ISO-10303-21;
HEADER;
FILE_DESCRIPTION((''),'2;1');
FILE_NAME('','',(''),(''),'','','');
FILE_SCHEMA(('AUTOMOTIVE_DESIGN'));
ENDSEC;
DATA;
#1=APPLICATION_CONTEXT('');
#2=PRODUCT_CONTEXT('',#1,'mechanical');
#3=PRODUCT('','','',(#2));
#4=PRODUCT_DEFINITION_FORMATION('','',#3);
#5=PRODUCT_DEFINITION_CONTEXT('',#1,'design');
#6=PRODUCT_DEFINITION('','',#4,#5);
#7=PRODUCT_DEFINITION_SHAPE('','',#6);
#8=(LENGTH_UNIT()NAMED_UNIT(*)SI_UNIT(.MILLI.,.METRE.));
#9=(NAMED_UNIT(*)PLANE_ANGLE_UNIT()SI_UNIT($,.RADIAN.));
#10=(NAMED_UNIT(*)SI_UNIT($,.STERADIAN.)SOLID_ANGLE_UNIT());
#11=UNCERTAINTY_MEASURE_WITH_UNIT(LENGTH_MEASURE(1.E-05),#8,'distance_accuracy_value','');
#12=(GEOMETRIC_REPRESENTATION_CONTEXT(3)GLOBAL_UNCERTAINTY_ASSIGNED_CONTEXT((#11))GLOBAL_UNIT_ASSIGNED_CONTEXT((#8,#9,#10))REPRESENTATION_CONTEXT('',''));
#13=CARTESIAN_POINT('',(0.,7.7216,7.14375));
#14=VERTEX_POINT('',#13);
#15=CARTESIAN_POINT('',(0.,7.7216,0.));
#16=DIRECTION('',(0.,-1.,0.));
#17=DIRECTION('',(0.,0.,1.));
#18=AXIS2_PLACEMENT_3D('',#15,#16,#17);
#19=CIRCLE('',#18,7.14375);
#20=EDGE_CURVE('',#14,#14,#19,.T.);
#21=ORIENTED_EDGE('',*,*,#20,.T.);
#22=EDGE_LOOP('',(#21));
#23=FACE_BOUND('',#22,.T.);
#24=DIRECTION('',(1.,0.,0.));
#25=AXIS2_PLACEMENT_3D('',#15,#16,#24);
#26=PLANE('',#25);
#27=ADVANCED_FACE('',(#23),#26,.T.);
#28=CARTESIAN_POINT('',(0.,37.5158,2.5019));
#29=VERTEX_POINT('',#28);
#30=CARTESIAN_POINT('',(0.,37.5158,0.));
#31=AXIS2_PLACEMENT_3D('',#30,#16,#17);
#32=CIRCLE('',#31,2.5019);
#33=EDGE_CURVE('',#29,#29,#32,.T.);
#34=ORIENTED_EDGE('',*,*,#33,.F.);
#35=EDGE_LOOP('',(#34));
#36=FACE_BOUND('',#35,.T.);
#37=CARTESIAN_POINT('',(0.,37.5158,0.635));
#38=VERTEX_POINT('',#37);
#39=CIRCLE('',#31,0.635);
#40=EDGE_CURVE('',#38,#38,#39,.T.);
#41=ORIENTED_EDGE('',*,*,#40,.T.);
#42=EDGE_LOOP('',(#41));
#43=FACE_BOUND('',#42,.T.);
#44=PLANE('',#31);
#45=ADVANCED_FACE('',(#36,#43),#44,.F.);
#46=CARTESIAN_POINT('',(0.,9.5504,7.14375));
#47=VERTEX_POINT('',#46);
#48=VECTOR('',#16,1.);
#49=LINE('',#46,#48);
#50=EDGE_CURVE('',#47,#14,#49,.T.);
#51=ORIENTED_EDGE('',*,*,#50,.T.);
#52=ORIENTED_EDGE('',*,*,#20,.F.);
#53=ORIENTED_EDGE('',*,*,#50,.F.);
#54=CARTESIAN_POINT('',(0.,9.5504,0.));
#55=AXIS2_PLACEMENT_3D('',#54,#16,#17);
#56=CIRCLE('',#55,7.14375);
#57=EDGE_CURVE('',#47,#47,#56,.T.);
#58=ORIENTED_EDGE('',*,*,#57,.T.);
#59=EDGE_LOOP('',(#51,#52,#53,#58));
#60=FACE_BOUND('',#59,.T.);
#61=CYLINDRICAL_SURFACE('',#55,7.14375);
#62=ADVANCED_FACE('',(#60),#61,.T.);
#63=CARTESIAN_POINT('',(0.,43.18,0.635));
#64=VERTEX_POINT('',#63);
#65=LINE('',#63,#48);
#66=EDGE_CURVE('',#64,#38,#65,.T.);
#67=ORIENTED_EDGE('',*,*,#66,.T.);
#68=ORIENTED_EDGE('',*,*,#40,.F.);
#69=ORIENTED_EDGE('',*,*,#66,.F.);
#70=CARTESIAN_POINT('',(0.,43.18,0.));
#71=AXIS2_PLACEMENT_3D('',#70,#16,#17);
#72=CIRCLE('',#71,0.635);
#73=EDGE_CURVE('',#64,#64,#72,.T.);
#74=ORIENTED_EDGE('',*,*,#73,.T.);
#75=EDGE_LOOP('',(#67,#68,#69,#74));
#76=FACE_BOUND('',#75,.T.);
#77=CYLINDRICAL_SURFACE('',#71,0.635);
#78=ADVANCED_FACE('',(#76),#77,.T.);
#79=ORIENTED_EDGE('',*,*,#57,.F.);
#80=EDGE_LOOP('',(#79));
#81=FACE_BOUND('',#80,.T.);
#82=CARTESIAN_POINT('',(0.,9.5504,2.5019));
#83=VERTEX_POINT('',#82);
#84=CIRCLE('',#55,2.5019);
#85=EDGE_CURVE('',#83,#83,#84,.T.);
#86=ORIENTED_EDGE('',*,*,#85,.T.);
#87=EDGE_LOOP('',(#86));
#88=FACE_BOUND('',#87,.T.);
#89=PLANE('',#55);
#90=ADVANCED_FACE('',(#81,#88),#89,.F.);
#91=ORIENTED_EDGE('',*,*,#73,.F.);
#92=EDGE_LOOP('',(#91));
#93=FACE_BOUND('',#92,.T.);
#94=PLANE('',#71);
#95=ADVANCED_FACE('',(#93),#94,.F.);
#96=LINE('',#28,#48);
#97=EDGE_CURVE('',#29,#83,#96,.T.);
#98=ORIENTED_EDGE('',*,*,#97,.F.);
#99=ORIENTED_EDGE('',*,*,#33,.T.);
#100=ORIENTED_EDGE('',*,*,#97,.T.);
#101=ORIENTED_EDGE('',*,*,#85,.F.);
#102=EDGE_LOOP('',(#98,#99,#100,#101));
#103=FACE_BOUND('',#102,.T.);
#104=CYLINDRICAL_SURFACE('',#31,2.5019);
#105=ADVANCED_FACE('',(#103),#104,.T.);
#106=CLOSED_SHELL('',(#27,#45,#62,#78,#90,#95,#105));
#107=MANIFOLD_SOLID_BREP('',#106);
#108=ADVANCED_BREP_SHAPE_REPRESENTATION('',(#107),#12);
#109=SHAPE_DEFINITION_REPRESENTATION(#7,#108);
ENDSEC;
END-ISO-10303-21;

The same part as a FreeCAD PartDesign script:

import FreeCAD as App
import Part
import Sketcher
Q = App.Units.Quantity


def add_polygon(sketch, points):
    """Adds a closed chain of lines whose ends are joined by coincident constraints."""
    first, n = sketch.GeometryCount, len(points)
    for a, b in zip(points, points[1:] + points[:1]):
        sketch.addGeometry(Part.LineSegment(App.Vector(*a, 0), App.Vector(*b, 0)), False)
    for i in range(n):
        sketch.addConstraint(Sketcher.Constraint("Coincident", first + i, 2, first + (i + 1) % n, 1))

doc = App.newDocument("Part")
body = doc.addObject("PartDesign::Body", "Body")

# Sketch on YZ plane
sketch1 = body.newObject("Sketcher::SketchObject", "Sketch")
sketch1.AttachmentSupport = (doc.getObject("YZ_Plane"), [""])
sketch1.MapMode = "FlatFace"
add_polygon(sketch1, [(0, 7.1), (0, 0), (43.2, 0), (43.2, 0.6), (37.5, 0.6), (37.5, 2.5), (9.6, 2.5), (9.6, 7.1)])  # lines 0-7
sketch1.addConstraint([
    Sketcher.Constraint("Vertical", 0),
    Sketcher.Constraint("Horizontal", 1),
    Sketcher.Constraint("Vertical", 2),
    Sketcher.Constraint("Horizontal", 3),
    Sketcher.Constraint("Vertical", 4),
    Sketcher.Constraint("Horizontal", 5),
    Sketcher.Constraint("Vertical", 6),
    Sketcher.Constraint("Horizontal", 7),
    Sketcher.Constraint("Coincident", 0, 2, -1, 1),
    Sketcher.Constraint("DistanceX", 1, 1, 1, 2, Q("1.7 in")),
    Sketcher.Constraint("DistanceX", 3, 2, 3, 1, Q("0.223 in")),
    Sketcher.Constraint("DistanceX", 5, 2, 5, 1, Q("1.101 in")),
    Sketcher.Constraint("DistanceY", 0, 2, 0, 1, Q("0.28125 in")),
    Sketcher.Constraint("DistanceY", 2, 1, 2, 2, Q("0.025 in")),
    Sketcher.Constraint("DistanceY", 4, 1, 4, 2, Q("0.0735 in")),
])
revolution = body.newObject("PartDesign::Revolution", "Revolution")
revolution.Profile = sketch1
revolution.ReferenceAxis = (sketch1, ["H_Axis"])
revolution.Angle = 360

# Sketch on XZ plane
sketch2 = body.newObject("Sketcher::SketchObject", "Sketch001")
sketch2.AttachmentSupport = (doc.getObject("XZ_Plane"), [""])
sketch2.MapMode = "FlatFace"
sketch2.addGeometry(Part.Circle(App.Vector(0, 0, 0), App.Vector(0, 0, 1), 10), False)
sketch2.addConstraint([
    Sketcher.Constraint("Coincident", 0, 3, -1, 1),
    Sketcher.Constraint("Diameter", 0, Q("0.75 in")),
])
pocket1 = body.newObject("PartDesign::Pocket", "Pocket")
pocket1.Profile = sketch2
pocket1.Length = Q("0.304 in")

doc.recompute()
